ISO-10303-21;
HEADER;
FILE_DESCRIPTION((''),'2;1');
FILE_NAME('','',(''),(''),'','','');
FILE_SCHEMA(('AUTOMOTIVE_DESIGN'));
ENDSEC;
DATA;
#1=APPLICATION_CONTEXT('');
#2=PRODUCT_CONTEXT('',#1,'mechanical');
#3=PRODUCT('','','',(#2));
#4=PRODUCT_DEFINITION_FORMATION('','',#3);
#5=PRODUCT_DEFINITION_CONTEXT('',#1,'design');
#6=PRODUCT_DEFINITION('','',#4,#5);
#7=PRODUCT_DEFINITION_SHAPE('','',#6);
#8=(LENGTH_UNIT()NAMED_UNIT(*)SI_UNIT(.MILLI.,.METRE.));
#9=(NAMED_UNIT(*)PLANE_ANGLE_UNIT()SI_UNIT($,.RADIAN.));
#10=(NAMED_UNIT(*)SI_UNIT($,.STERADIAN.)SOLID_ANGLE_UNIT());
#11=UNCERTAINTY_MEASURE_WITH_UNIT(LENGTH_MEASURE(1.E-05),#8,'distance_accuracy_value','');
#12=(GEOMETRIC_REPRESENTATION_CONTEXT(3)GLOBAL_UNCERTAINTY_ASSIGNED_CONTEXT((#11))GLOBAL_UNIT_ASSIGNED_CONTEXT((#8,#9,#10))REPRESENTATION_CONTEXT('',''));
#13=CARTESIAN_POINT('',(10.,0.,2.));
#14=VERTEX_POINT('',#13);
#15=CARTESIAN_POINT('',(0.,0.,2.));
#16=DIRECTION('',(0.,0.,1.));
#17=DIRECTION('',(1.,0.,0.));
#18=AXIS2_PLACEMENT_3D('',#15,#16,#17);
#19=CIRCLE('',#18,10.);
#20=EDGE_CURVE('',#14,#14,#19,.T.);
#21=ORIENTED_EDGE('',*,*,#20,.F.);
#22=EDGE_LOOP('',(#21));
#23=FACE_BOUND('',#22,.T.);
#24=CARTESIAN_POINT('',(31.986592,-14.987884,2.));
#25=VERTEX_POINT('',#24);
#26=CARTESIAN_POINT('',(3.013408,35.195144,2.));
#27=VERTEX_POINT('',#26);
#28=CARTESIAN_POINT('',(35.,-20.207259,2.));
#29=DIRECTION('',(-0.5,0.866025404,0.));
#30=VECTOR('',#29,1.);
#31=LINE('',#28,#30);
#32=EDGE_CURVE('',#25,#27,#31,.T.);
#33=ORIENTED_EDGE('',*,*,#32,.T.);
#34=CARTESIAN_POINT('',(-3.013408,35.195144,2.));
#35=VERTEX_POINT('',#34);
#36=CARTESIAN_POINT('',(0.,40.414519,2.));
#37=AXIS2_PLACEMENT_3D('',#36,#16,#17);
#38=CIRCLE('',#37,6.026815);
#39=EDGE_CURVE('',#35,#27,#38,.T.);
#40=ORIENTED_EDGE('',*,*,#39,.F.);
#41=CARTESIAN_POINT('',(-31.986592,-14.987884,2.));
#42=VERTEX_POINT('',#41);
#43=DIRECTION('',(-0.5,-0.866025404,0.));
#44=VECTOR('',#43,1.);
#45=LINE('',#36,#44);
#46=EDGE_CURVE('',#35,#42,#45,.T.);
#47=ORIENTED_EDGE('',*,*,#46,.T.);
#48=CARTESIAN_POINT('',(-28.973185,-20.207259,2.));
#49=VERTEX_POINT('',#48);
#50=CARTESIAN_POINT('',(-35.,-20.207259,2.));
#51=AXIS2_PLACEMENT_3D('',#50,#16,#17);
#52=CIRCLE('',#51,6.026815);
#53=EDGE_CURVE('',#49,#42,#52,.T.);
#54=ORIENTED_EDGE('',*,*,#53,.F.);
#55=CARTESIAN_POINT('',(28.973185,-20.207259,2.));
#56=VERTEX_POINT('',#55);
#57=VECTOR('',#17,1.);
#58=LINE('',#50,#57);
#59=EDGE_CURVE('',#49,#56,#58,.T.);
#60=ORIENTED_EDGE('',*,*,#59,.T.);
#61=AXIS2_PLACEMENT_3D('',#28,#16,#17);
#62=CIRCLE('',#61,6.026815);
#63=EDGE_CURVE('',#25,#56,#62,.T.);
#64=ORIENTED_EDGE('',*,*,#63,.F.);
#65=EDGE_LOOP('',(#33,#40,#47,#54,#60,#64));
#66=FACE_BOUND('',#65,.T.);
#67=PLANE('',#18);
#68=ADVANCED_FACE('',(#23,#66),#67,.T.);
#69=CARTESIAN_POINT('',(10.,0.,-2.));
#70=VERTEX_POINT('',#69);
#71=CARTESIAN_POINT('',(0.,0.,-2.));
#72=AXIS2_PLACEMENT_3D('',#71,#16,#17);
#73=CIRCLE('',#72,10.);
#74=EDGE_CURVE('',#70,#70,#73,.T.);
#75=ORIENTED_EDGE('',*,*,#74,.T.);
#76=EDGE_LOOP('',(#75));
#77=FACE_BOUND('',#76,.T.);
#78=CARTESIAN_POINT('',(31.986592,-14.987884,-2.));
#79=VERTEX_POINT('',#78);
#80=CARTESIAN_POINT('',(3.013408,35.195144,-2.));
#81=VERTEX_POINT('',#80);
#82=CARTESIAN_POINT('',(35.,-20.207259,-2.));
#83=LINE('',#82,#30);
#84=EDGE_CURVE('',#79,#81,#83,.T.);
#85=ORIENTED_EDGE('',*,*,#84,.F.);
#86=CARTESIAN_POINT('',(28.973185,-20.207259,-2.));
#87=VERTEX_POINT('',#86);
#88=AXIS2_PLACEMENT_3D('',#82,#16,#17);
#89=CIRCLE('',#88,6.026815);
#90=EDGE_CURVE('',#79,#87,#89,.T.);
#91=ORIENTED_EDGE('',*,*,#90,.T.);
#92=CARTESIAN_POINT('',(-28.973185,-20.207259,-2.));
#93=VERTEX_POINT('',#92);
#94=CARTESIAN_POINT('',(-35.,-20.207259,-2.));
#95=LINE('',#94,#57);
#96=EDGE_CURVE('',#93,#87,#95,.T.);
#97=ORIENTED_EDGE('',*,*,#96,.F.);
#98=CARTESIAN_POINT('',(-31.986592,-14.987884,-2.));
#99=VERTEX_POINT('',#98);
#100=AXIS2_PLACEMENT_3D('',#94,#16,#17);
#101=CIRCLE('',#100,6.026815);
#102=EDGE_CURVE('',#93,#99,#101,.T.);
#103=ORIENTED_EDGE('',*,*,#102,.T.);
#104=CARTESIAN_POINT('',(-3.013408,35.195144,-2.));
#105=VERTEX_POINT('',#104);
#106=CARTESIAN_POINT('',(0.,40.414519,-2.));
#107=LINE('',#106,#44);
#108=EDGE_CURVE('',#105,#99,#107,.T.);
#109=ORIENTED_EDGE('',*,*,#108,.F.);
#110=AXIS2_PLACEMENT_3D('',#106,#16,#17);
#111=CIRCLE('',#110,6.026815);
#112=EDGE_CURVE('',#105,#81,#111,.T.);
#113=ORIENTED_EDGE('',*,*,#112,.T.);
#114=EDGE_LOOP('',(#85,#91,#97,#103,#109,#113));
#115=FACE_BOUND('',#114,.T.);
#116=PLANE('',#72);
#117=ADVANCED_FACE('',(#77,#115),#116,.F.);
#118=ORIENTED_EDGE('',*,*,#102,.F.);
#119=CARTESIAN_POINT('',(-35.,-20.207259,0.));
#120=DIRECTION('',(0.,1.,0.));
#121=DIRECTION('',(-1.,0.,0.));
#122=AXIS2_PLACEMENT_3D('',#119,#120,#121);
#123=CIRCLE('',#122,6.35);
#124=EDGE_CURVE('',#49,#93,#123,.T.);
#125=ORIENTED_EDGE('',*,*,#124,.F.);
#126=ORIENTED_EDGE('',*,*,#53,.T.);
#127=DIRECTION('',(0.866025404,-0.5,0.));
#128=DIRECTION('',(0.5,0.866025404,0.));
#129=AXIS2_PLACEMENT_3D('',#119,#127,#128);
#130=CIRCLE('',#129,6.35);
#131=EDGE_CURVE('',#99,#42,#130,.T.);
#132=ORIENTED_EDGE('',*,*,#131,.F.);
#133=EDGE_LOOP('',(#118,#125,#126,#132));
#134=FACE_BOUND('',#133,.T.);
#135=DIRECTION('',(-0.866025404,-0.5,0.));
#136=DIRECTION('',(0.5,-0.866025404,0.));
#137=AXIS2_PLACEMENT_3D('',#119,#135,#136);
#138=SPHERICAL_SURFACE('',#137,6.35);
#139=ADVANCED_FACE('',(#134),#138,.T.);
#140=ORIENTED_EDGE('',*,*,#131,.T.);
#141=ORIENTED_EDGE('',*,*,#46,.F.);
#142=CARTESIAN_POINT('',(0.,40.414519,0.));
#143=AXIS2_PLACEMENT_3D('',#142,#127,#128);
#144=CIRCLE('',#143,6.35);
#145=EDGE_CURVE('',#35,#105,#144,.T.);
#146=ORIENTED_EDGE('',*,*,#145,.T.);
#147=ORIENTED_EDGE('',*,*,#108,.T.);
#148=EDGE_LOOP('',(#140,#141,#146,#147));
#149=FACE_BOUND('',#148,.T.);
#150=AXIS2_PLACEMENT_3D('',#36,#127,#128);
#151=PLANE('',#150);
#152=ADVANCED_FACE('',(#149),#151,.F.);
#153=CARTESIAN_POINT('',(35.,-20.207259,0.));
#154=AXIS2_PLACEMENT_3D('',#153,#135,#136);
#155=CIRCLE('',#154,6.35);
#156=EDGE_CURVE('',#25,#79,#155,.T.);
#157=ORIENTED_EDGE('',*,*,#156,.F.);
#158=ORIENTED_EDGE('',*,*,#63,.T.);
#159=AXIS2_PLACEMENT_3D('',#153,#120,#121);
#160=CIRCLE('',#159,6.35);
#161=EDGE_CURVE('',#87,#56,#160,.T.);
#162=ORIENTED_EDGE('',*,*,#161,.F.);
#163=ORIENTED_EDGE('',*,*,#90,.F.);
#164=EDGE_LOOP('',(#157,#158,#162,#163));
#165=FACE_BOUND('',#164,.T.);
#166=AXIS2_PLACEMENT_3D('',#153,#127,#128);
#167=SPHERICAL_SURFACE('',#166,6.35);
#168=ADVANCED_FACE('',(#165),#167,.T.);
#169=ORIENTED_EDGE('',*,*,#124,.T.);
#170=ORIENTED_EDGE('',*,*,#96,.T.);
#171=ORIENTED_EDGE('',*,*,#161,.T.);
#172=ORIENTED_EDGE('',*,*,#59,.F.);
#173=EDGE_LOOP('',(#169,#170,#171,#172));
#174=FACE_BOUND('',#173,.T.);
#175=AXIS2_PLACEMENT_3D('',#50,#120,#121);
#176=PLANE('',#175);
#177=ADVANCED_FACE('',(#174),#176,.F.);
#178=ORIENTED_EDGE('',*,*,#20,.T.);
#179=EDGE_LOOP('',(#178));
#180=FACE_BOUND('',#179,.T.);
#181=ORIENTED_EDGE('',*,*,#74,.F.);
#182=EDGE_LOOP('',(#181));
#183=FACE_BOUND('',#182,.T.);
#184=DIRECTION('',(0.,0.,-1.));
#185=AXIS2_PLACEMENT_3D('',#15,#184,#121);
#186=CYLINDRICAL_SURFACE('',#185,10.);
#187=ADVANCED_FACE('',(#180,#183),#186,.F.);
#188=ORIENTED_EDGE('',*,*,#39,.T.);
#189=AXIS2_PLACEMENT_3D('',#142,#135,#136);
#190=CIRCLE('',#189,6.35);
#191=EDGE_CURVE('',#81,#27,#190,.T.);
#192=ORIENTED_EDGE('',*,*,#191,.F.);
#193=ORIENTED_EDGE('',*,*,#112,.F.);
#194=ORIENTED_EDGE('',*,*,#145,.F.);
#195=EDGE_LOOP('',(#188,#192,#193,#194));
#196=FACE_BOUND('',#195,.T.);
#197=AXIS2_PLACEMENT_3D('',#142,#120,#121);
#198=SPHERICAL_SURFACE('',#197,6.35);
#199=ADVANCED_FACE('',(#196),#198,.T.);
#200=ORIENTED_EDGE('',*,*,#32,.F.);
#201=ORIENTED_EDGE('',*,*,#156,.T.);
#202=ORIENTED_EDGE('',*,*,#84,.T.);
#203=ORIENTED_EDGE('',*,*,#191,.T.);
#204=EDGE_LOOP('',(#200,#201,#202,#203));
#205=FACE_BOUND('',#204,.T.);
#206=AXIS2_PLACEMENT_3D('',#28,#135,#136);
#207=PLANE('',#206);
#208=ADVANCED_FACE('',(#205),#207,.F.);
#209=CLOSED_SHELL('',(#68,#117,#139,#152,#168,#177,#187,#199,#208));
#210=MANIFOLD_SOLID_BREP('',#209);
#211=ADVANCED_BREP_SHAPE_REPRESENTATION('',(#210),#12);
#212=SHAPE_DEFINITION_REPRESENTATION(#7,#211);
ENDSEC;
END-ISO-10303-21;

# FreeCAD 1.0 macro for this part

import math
import FreeCAD as App
import Part
import Sketcher
from FreeCAD import Vector
Q = App.Units.Quantity

doc = App.newDocument("Part")
params = doc.addObject("Spreadsheet::Sheet", "Params")
for row, (alias, value) in enumerate([
    ("sketch1_diameter", "20 mm"),
    ("sketch1_width", "70 mm"),
    ("pad1_length", "4 mm"),
    ("sketch2_radius", "6.35 mm"),
    ("revolution_angle", "360 deg"),
], start=1):
    params.set(f"A{row}", alias)
    params.set(f"B{row}", "=" + value)
    params.setAlias(f"B{row}", alias)

body = doc.addObject("PartDesign::Body", "Body")

sketch1 = body.newObject("Sketcher::SketchObject", "Sketch")
sketch1.AttachmentSupport = (doc.getObject("XY_Plane"), [""])
sketch1.MapMode = "FlatFace"
sketch1.addGeometry([
    Part.LineSegment(Vector(0, 40.414519, 0), Vector(-35, -20.207259, 0)),
    Part.LineSegment(Vector(-35, -20.207259, 0), Vector(35, -20.207259, 0)),
    Part.LineSegment(Vector(35, -20.207259, 0), Vector(0, 40.414519, 0)),
    Part.Circle(Vector(0, 0, 0), Vector(0, 0, 1), 10),
], False)
sketch1.addConstraint([
    Sketcher.Constraint("Coincident", 0, 2, 1, 1),
    Sketcher.Constraint("Coincident", 1, 2, 2, 1),
    Sketcher.Constraint("Coincident", 2, 2, 0, 1),
    Sketcher.Constraint("Horizontal", 1),
    Sketcher.Constraint("Coincident", 3, 3, -1, 1),
    Sketcher.Constraint("PointOnObject", 2, 2, -2),
    Sketcher.Constraint("Equal", 0, 2),
    Sketcher.Constraint("Diameter", 3, Q("20 mm")),
    Sketcher.Constraint("DistanceX", 1, 1, 1, 2, Q("70 mm")),
    Sketcher.Constraint("Angle", 0, Q("-120 deg")),
    Sketcher.Constraint("DistanceY", 0, 2, -1, 1, Q("20.207259 mm")),
])
sketch1.setExpression("Constraints[7]", "Params.sketch1_diameter")
sketch1.setExpression("Constraints[8]", "Params.sketch1_width")
pad1 = body.newObject("PartDesign::Pad", "Pad")
pad1.Profile = sketch1
pad1.setExpression("Length", "Params.pad1_length")
pad1.Midplane = True

sketch2 = body.newObject("Sketcher::SketchObject", "Sketch001")
sketch2.AttachmentSupport = (doc.getObject("XY_Plane"), [""])
sketch2.MapMode = "FlatFace"
sketch2.addGeometry([
    Part.LineSegment(Vector(0, 34.064519, 0), Vector(0, 46.764519, 0)),
    Part.ArcOfCircle(Part.Circle(Vector(0, 40.414519, 0), Vector(0, 0, 1), 6.35), math.radians(90), math.radians(270)),
], False)
sketch2.addConstraint([
    Sketcher.Constraint("Coincident", 0, 1, 1, 2),
    Sketcher.Constraint("Coincident", 1, 1, 0, 2),
    Sketcher.Constraint("Vertical", 0),
    Sketcher.Constraint("PointOnObject", 1, 3, -2),
    Sketcher.Constraint("PointOnObject", 0, 1, -2),
    Sketcher.Constraint("Radius", 1, Q("6.35 mm")),
    Sketcher.Constraint("DistanceY", -1, 1, 1, 3, Q("40.414519 mm")),
])
sketch2.setExpression("Constraints[5]", "Params.sketch2_radius")
revolution = body.newObject("PartDesign::Revolution", "Revolution")
revolution.Profile = sketch2
revolution.ReferenceAxis = (sketch2, ["V_Axis"])
revolution.setExpression("Angle", "Params.revolution_angle")
doc.recompute()

polarpattern = body.newObject("PartDesign::PolarPattern", "PolarPattern")
polarpattern.Originals = [revolution]
polarpattern.Axis = (doc.getObject("Z_Axis"), [""])
polarpattern.Angle = 360
polarpattern.Occurrences = 3
body.Tip = polarpattern

doc.recompute()
